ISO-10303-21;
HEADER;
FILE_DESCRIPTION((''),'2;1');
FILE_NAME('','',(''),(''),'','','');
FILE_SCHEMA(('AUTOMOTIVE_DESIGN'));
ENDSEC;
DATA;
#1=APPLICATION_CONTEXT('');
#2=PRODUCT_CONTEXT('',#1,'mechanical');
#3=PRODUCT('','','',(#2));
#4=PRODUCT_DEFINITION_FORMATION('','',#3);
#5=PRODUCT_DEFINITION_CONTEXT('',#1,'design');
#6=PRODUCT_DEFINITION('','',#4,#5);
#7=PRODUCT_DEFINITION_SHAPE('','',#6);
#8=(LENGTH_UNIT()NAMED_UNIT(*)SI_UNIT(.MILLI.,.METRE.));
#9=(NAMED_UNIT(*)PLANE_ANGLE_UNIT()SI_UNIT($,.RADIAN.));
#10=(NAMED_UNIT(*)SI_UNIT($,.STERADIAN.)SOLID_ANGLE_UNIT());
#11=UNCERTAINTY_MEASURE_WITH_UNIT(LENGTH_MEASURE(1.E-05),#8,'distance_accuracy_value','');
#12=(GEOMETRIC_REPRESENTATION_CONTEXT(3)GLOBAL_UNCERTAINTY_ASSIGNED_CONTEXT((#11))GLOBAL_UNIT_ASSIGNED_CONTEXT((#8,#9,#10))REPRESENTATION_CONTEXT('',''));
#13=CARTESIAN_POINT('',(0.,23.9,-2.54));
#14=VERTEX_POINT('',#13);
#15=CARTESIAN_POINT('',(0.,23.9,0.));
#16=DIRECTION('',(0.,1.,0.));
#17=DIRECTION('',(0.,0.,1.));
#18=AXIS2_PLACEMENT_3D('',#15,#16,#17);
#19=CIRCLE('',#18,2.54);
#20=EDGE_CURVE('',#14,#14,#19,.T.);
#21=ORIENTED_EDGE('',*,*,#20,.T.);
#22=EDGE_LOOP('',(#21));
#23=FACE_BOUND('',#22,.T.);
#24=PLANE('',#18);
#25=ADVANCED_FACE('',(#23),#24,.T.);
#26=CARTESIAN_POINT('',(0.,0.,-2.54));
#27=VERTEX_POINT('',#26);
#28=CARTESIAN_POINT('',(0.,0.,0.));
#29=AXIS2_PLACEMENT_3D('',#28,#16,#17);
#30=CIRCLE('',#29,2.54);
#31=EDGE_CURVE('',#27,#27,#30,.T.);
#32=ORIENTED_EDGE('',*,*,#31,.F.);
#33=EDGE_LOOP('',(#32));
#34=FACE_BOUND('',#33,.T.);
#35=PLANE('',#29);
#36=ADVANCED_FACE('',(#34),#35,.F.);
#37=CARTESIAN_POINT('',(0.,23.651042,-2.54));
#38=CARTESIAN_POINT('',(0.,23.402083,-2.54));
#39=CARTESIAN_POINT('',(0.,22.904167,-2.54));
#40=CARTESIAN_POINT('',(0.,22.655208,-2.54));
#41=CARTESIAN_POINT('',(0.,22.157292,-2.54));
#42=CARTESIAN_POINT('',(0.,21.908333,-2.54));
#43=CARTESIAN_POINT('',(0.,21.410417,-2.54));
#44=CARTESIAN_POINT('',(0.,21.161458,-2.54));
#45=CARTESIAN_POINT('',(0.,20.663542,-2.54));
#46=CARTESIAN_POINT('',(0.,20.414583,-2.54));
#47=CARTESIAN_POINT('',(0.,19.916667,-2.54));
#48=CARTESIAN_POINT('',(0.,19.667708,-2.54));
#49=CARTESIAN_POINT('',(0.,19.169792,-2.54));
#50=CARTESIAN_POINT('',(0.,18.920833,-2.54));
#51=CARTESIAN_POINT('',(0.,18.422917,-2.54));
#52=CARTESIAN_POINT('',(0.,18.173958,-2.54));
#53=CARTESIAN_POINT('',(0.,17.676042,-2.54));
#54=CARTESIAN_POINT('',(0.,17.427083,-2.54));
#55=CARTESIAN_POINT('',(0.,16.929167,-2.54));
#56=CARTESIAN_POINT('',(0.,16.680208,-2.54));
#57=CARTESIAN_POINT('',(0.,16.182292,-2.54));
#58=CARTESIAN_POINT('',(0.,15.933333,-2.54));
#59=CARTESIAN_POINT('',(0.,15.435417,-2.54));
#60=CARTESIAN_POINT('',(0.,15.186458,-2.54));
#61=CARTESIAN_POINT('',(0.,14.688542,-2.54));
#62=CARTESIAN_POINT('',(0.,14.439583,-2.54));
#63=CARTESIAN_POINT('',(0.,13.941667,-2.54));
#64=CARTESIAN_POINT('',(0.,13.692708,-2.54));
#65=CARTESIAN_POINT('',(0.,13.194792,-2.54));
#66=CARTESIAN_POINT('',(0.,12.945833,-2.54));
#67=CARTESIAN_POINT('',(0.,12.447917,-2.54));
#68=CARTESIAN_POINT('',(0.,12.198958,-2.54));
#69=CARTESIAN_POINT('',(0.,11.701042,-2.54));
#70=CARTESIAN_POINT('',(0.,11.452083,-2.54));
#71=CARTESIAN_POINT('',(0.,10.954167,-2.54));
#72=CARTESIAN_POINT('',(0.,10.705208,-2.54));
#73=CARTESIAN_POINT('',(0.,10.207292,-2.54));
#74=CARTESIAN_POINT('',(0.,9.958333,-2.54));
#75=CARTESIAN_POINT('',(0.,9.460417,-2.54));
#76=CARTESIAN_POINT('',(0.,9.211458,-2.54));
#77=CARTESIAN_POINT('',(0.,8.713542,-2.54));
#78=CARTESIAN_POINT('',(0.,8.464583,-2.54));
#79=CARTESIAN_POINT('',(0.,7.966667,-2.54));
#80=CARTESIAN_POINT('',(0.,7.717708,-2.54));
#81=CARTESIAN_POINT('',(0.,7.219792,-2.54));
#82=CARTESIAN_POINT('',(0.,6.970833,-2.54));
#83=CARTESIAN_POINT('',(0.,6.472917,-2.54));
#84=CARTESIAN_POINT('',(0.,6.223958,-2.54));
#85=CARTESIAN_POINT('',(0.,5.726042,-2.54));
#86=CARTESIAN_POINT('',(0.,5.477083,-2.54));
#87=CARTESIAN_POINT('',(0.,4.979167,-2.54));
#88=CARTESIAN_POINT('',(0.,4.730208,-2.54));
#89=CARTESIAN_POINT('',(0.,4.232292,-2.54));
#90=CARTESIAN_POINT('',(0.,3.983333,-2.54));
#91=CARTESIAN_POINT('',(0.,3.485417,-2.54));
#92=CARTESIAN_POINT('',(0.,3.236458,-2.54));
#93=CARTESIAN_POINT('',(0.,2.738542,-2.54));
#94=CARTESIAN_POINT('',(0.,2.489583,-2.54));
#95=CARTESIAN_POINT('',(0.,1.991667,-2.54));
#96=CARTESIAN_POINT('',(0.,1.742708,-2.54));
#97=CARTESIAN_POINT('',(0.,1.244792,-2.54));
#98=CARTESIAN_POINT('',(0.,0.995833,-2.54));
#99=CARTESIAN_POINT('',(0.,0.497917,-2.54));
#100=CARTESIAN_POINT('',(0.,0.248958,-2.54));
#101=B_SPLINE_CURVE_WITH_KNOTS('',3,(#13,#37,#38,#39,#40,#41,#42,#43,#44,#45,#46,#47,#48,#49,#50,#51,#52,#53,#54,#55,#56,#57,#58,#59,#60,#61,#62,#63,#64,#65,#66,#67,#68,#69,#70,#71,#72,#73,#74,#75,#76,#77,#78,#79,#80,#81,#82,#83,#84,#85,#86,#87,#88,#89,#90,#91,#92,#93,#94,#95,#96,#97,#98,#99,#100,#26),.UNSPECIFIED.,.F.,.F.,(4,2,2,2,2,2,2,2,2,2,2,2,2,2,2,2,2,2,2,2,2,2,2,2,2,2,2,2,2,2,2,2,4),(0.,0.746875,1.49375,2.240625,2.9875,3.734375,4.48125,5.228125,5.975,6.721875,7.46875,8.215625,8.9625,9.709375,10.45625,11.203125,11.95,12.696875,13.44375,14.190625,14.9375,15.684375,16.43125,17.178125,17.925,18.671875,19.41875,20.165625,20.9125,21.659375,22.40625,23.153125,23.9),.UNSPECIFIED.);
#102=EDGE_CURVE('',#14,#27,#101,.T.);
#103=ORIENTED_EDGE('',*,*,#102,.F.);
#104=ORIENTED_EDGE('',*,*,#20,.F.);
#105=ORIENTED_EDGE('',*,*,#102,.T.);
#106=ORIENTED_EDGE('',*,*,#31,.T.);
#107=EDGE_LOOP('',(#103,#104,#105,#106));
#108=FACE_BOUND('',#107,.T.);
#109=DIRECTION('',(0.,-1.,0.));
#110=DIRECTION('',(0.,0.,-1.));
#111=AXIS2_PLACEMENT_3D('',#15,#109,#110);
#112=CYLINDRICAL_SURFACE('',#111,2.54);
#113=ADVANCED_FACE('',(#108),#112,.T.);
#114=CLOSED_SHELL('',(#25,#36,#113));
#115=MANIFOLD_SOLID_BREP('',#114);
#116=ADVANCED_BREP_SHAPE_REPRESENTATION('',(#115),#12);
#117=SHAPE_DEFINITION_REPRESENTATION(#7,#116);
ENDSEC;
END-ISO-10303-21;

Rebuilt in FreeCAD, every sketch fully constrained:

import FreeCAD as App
import Part
import Sketcher
from FreeCAD import Vector
Q = App.Units.Quantity

doc = App.newDocument("Part")
body = doc.addObject("PartDesign::Body", "Body")

sketch1 = doc.addObject("Sketcher::SketchObject", "Sketch")
body.addObject(sketch1)
sketch1.AttachmentSupport = (doc.XZ_Plane, [""])
sketch1.MapMode = "FlatFace"
sketch1.addGeometry(Part.Circle(Vector(0, 0, 0), Vector(0, 0, 1), 2.5), False)
sketch1.addConstraint(Sketcher.Constraint("Coincident", 0, 3, -1, 1))
sketch1.addConstraint(Sketcher.Constraint("Diameter", 0, Q("5.08 mm")))
pad1 = doc.addObject("PartDesign::Pad", "Pad")
body.addObject(pad1)
pad1.Profile = sketch1
pad1.Length = 23.9
pad1.Reversed = True

doc.recompute()
